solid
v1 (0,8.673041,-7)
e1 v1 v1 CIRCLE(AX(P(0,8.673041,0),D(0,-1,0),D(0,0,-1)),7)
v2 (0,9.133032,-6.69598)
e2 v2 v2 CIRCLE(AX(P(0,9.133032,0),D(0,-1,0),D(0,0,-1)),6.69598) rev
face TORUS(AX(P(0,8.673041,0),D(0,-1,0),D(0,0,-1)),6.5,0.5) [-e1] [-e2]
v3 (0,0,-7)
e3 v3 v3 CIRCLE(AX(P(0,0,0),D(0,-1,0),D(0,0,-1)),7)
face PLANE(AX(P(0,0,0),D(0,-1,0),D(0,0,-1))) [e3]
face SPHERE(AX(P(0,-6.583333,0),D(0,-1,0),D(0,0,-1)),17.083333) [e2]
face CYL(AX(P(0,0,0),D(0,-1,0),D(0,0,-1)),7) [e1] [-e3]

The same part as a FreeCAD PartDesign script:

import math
import FreeCAD as App
import Part
import Sketcher
from FreeCAD import Vector
Q = App.Units.Quantity


def edges_at(feature, points):
    """Names of the edges that pass closest to the given points."""
    edges = feature.Shape.Edges
    near = lambda p: min(range(len(edges)), key=lambda i: edges[i].distToShape(Part.Vertex(*p))[0])
    return sorted({f"Edge{near(p) + 1}" for p in points})

doc = App.newDocument("Part")
params = doc.addObject("Spreadsheet::Sheet", "Params")
for row, (alias, value) in enumerate([
    ("sketch1_width", "9 mm"),
    ("sketch1_height", "7 mm"),
    ("sketch1_width2", "10.5 mm"),
    ("revolution_angle", "360 deg"),
    ("fillet_radius", "0.5 mm"),
], start=1):
    params.set(f"A{row}", alias)
    params.set(f"B{row}", "=" + value)
    params.setAlias(f"B{row}", alias)

body = doc.addObject("PartDesign::Body", "Body")

# Sketch on YZ plane
sketch1 = body.newObject("Sketcher::SketchObject", "Sketch")
sketch1.AttachmentSupport = (doc.getObject("YZ_Plane"), [""])
sketch1.MapMode = "FlatFace"
sketch1.addGeometry(Part.LineSegment(Vector(0, 0, 0), Vector(0, -7, 0)), False)
sketch1.addGeometry(Part.LineSegment(Vector(0, -7, 0), Vector(9, -7, 0)), False)
sketch1.addGeometry(Part.ArcOfCircle(Part.Circle(Vector(-7, 0, 0), Vector(0, 0, 1), 17), math.radians(-24), math.radians(0)), False)
sketch1.addGeometry(Part.LineSegment(Vector(10, 0, 0), Vector(0, 0, 0)), False)
sketch1.addConstraint(Sketcher.Constraint("Coincident", 0, 2, 1, 1))
sketch1.addConstraint(Sketcher.Constraint("Coincident", 1, 2, 2, 1))
sketch1.addConstraint(Sketcher.Constraint("Coincident", 2, 2, 3, 1))
sketch1.addConstraint(Sketcher.Constraint("Coincident", 3, 2, 0, 1))
sketch1.addConstraint(Sketcher.Constraint("Vertical", 0))
sketch1.addConstraint(Sketcher.Constraint("Horizontal", 1))
sketch1.addConstraint(Sketcher.Constraint("Horizontal", 3))
sketch1.addConstraint(Sketcher.Constraint("Coincident", 3, 2, -1, 1))
sketch1.addConstraint(Sketcher.Constraint("PointOnObject", 2, 3, -1))
sketch1.addConstraint(Sketcher.Constraint("DistanceX", 1, 1, 1, 2, Q("9 mm")))
sketch1.addConstraint(Sketcher.Constraint("DistanceY", 0, 2, 0, 1, Q("7 mm")))
sketch1.addConstraint(Sketcher.Constraint("DistanceX", 3, 2, 3, 1, Q("10.5 mm")))
sketch1.setExpression("Constraints[9]", "Params.sketch1_width")
sketch1.setExpression("Constraints[10]", "Params.sketch1_height")
sketch1.setExpression("Constraints[11]", "Params.sketch1_width2")
revolution = body.newObject("PartDesign::Revolution", "Revolution")
revolution.Profile = sketch1
revolution.ReferenceAxis = (sketch1, ["H_Axis"])
revolution.setExpression("Angle", "Params.revolution_angle")
doc.recompute()

fillet = body.newObject("PartDesign::Fillet", "Fillet")
fillet.Base = (revolution, edges_at(revolution, [(0, 9, 7)]))
fillet.setExpression("Radius", "Params.fillet_radius")

doc.recompute()
